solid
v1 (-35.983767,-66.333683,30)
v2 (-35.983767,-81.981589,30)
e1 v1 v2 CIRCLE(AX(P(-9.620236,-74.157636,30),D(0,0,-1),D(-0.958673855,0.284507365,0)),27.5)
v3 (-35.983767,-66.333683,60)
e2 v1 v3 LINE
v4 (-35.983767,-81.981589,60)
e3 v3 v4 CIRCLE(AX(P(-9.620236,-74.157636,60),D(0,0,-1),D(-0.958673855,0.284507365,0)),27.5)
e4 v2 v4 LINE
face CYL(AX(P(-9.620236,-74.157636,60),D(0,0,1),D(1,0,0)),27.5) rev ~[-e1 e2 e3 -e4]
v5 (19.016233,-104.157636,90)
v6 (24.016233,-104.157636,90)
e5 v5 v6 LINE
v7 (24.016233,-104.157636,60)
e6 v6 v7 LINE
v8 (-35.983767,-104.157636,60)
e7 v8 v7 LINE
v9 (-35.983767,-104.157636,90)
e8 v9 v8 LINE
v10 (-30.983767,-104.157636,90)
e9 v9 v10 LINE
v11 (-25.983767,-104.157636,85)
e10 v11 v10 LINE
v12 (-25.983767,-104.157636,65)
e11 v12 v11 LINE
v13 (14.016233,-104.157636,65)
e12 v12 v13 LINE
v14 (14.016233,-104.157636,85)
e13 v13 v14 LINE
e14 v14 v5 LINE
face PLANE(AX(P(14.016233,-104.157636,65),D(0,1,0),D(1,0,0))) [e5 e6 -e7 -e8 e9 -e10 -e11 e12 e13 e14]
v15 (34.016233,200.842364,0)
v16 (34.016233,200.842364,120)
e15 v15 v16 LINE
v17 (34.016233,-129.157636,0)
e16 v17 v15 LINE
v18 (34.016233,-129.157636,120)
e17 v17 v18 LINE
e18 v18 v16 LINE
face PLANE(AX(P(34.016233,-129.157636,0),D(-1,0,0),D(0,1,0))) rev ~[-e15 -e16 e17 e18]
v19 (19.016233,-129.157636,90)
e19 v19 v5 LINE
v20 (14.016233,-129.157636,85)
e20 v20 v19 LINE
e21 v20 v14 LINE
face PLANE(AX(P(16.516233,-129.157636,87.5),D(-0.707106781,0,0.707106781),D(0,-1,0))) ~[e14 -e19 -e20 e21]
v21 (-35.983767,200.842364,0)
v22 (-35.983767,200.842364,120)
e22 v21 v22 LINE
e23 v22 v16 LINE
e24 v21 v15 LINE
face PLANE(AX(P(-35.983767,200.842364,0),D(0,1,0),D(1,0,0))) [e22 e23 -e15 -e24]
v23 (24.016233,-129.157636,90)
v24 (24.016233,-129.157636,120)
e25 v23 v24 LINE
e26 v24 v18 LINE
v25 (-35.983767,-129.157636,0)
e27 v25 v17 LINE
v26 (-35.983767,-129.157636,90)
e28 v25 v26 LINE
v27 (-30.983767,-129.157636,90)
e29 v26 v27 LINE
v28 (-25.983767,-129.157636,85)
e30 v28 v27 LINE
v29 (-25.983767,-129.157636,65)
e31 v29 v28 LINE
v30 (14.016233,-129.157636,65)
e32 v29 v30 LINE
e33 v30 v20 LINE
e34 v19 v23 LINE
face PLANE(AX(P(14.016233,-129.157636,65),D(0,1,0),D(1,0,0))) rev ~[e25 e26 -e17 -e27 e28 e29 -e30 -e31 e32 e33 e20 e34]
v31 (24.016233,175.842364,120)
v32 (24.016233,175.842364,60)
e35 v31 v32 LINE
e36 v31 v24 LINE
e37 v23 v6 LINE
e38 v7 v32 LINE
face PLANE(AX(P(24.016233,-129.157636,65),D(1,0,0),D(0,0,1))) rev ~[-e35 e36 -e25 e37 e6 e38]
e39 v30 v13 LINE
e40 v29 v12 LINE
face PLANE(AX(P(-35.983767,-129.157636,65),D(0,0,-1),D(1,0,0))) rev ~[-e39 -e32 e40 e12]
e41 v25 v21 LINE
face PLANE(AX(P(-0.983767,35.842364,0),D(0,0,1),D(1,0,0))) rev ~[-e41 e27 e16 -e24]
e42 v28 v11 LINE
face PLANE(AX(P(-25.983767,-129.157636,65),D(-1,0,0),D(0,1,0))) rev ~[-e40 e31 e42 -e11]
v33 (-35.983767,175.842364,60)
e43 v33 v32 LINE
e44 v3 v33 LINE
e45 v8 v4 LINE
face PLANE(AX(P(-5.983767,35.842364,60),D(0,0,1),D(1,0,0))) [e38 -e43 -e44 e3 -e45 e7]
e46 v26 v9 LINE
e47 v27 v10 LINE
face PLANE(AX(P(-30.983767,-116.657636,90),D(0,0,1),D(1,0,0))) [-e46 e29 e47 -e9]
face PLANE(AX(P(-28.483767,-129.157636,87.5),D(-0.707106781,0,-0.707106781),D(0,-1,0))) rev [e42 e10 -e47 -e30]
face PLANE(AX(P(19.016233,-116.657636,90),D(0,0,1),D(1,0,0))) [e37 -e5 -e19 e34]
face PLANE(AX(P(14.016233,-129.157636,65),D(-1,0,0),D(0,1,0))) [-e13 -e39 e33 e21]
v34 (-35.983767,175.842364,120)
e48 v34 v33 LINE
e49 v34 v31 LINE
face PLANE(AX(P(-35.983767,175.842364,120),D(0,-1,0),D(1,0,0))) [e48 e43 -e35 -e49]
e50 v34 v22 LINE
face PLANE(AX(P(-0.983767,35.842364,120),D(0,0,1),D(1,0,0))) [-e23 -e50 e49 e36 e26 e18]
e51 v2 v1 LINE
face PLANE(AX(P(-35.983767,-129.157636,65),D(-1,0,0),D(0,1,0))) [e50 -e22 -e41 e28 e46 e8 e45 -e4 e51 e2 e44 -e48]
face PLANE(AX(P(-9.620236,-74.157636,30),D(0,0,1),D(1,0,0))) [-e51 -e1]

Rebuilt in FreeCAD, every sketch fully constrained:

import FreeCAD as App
import Part
import Sketcher
Q = App.Units.Quantity


def edges_at(feature, points):
    """Names of the edges that pass closest to the given points."""
    edges = feature.Shape.Edges
    near = lambda p: min(range(len(edges)), key=lambda i: edges[i].distToShape(Part.Vertex(*p))[0])
    return sorted({f"Edge{near(p) + 1}" for p in points})

doc = App.newDocument("Part")
body = doc.addObject("PartDesign::Body", "Body")

# Sketch on XY plane
sketch1 = body.newObject("Sketcher::SketchObject", "Sketch")
sketch1.AttachmentSupport = (doc.getObject("XY_Plane"), [""])
sketch1.MapMode = "FlatFace"
sketch1.addGeometry(Part.LineSegment(App.Vector(-35.983767, 200.842364, 0), App.Vector(-35.983767, -129.157636, 0)), False)
sketch1.addGeometry(Part.LineSegment(App.Vector(-35.983767, -129.157636, 0), App.Vector(34.016233, -129.157636, 0)), False)
sketch1.addGeometry(Part.LineSegment(App.Vector(34.016233, -129.157636, 0), App.Vector(34.016233, 200.842364, 0)), False)
sketch1.addGeometry(Part.LineSegment(App.Vector(34.016233, 200.842364, 0), App.Vector(-35.983767, 200.842364, 0)), False)
sketch1.addConstraint(Sketcher.Constraint("Coincident", 0, 2, 1, 1))
sketch1.addConstraint(Sketcher.Constraint("Coincident", 1, 2, 2, 1))
sketch1.addConstraint(Sketcher.Constraint("Coincident", 2, 2, 3, 1))
sketch1.addConstraint(Sketcher.Constraint("Coincident", 3, 2, 0, 1))
sketch1.addConstraint(Sketcher.Constraint("Vertical", 0))
sketch1.addConstraint(Sketcher.Constraint("Horizontal", 1))
sketch1.addConstraint(Sketcher.Constraint("Vertical", 2))
sketch1.addConstraint(Sketcher.Constraint("Horizontal", 3))
sketch1.addConstraint(Sketcher.Constraint("DistanceX", 1, 1, 1, 2, Q("70 mm")))
sketch1.addConstraint(Sketcher.Constraint("DistanceY", 0, 2, 0, 1, Q("330 mm")))
sketch1.addConstraint(Sketcher.Constraint("DistanceX", 0, 2, -1, 1, Q("35.983767 mm")))
sketch1.addConstraint(Sketcher.Constraint("DistanceY", 0, 2, -1, 1, Q("129.157636 mm")))
pad1 = body.newObject("PartDesign::Pad", "Pad")
pad1.Profile = sketch1
pad1.Length = 120

# Sketch on XY plane
sketch2 = body.newObject("Sketcher::SketchObject", "Sketch001")
sketch2.AttachmentSupport = (doc.getObject("XY_Plane"), [""])
sketch2.MapMode = "FlatFace"
sketch2.AttachmentOffset = App.Placement(App.Vector(0, 0, 120), App.Rotation())
sketch2.addGeometry(Part.LineSegment(App.Vector(-35.983767, 175.842364, 0), App.Vector(-35.983767, -104.157636, 0)), False)
sketch2.addGeometry(Part.LineSegment(App.Vector(-35.983767, -104.157636, 0), App.Vector(24.016233, -104.157636, 0)), False)
sketch2.addGeometry(Part.LineSegment(App.Vector(24.016233, -104.157636, 0), App.Vector(24.016233, 175.842364, 0)), False)
sketch2.addGeometry(Part.LineSegment(App.Vector(24.016233, 175.842364, 0), App.Vector(-35.983767, 175.842364, 0)), False)
sketch2.addConstraint(Sketcher.Constraint("Coincident", 0, 2, 1, 1))
sketch2.addConstraint(Sketcher.Constraint("Coincident", 1, 2, 2, 1))
sketch2.addConstraint(Sketcher.Constraint("Coincident", 2, 2, 3, 1))
sketch2.addConstraint(Sketcher.Constraint("Coincident", 3, 2, 0, 1))
sketch2.addConstraint(Sketcher.Constraint("Vertical", 0))
sketch2.addConstraint(Sketcher.Constraint("Horizontal", 1))
sketch2.addConstraint(Sketcher.Constraint("Vertical", 2))
sketch2.addConstraint(Sketcher.Constraint("Horizontal", 3))
sketch2.addConstraint(Sketcher.Constraint("DistanceX", 1, 1, 1, 2, Q("60 mm")))
sketch2.addConstraint(Sketcher.Constraint("DistanceY", 0, 2, 0, 1, Q("280 mm")))
sketch2.addConstraint(Sketcher.Constraint("DistanceX", 0, 2, -1, 1, Q("35.983767 mm")))
sketch2.addConstraint(Sketcher.Constraint("DistanceY", 0, 2, -1, 1, Q("104.157636 mm")))
pocket1 = body.newObject("PartDesign::Pocket", "Pocket")
pocket1.Profile = sketch2
pocket1.Length = 60

# Sketch on XY plane
sketch3 = body.newObject("Sketcher::SketchObject", "Sketch002")
sketch3.AttachmentSupport = (doc.getObject("XY_Plane"), [""])
sketch3.MapMode = "FlatFace"
sketch3.AttachmentOffset = App.Placement(App.Vector(0, 0, 60), App.Rotation())
sketch3.addGeometry(Part.Circle(App.Vector(-9.620236, -74.157636, 0), App.Vector(0, 0, 1), 27.5), False)
sketch3.addConstraint(Sketcher.Constraint("Diameter", 0, Q("55 mm")))
sketch3.addConstraint(Sketcher.Constraint("DistanceX", 0, 3, -1, 1, Q("9.620236 mm")))
sketch3.addConstraint(Sketcher.Constraint("DistanceY", 0, 3, -1, 1, Q("74.157636 mm")))
pocket2 = body.newObject("PartDesign::Pocket", "Pocket001")
pocket2.Profile = sketch3
pocket2.Length = 30

# Sketch on XZ plane
sketch4 = body.newObject("Sketcher::SketchObject", "Sketch003")
sketch4.AttachmentSupport = (doc.getObject("XZ_Plane"), [""])
sketch4.MapMode = "FlatFace"
sketch4.AttachmentOffset = App.Placement(App.Vector(0, 0, 129.157636), App.Rotation())
sketch4.addGeometry(Part.LineSegment(App.Vector(-35.983767, 120, 0), App.Vector(-35.983767, 65, 0)), False)
sketch4.addGeometry(Part.LineSegment(App.Vector(-35.983767, 65, 0), App.Vector(24.016233, 65, 0)), False)
sketch4.addGeometry(Part.LineSegment(App.Vector(24.016233, 65, 0), App.Vector(24.016233, 120, 0)), False)
sketch4.addGeometry(Part.LineSegment(App.Vector(24.016233, 120, 0), App.Vector(-35.983767, 120, 0)), False)
sketch4.addConstraint(Sketcher.Constraint("Coincident", 0, 2, 1, 1))
sketch4.addConstraint(Sketcher.Constraint("Coincident", 1, 2, 2, 1))
sketch4.addConstraint(Sketcher.Constraint("Coincident", 2, 2, 3, 1))
sketch4.addConstraint(Sketcher.Constraint("Coincident", 3, 2, 0, 1))
sketch4.addConstraint(Sketcher.Constraint("Vertical", 0))
sketch4.addConstraint(Sketcher.Constraint("Horizontal", 1))
sketch4.addConstraint(Sketcher.Constraint("Vertical", 2))
sketch4.addConstraint(Sketcher.Constraint("Horizontal", 3))
sketch4.addConstraint(Sketcher.Constraint("DistanceX", 1, 1, 1, 2, Q("60 mm")))
sketch4.addConstraint(Sketcher.Constraint("DistanceY", 0, 2, 0, 1, Q("55 mm")))
sketch4.addConstraint(Sketcher.Constraint("DistanceY", -1, 1, 0, 2, Q("65 mm")))
sketch4.addConstraint(Sketcher.Constraint("DistanceX", 0, 2, -1, 1, Q("35.983767 mm")))
pocket3 = body.newObject("PartDesign::Pocket", "Pocket002")
pocket3.Profile = sketch4
pocket3.Length = 25

# Sketch on XY plane
sketch5 = body.newObject("Sketcher::SketchObject", "Sketch004")
sketch5.AttachmentSupport = (doc.getObject("XY_Plane"), [""])
sketch5.MapMode = "FlatFace"
sketch5.AttachmentOffset = App.Placement(App.Vector(0, 0, 65), App.Rotation())
sketch5.addGeometry(Part.LineSegment(App.Vector(-35.983767, -104.157636, 0), App.Vector(-35.983767, -129.157636, 0)), False)
sketch5.addGeometry(Part.LineSegment(App.Vector(-35.983767, -129.157636, 0), App.Vector(-25.983767, -129.157636, 0)), False)
sketch5.addGeometry(Part.LineSegment(App.Vector(-25.983767, -129.157636, 0), App.Vector(-25.983767, -104.157636, 0)), False)
sketch5.addGeometry(Part.LineSegment(App.Vector(-25.983767, -104.157636, 0), App.Vector(-35.983767, -104.157636, 0)), False)
sketch5.addConstraint(Sketcher.Constraint("Coincident", 0, 2, 1, 1))
sketch5.addConstraint(Sketcher.Constraint("Coincident", 1, 2, 2, 1))
sketch5.addConstraint(Sketcher.Constraint("Coincident", 2, 2, 3, 1))
sketch5.addConstraint(Sketcher.Constraint("Coincident", 3, 2, 0, 1))
sketch5.addConstraint(Sketcher.Constraint("Vertical", 0))
sketch5.addConstraint(Sketcher.Constraint("Horizontal", 1))
sketch5.addConstraint(Sketcher.Constraint("Vertical", 2))
sketch5.addConstraint(Sketcher.Constraint("Horizontal", 3))
sketch5.addConstraint(Sketcher.Constraint("DistanceX", 1, 1, 1, 2, Q("10 mm")))
sketch5.addConstraint(Sketcher.Constraint("DistanceY", 0, 2, 0, 1, Q("25 mm")))
sketch5.addConstraint(Sketcher.Constraint("DistanceX", 0, 2, -1, 1, Q("35.983767 mm")))
sketch5.addConstraint(Sketcher.Constraint("DistanceY", 0, 2, -1, 1, Q("129.157636 mm")))
pad2 = body.newObject("PartDesign::Pad", "Pad001")
pad2.Profile = sketch5
pad2.Length = 25

# Sketch on XY plane
sketch6 = body.newObject("Sketcher::SketchObject", "Sketch005")
sketch6.AttachmentSupport = (doc.getObject("XY_Plane"), [""])
sketch6.MapMode = "FlatFace"
sketch6.AttachmentOffset = App.Placement(App.Vector(0, 0, 65), App.Rotation())
sketch6.addGeometry(Part.LineSegment(App.Vector(14.016233, -104.157636, 0), App.Vector(14.016233, -129.157636, 0)), False)
sketch6.addGeometry(Part.LineSegment(App.Vector(14.016233, -129.157636, 0), App.Vector(24.016233, -129.157636, 0)), False)
sketch6.addGeometry(Part.LineSegment(App.Vector(24.016233, -129.157636, 0), App.Vector(24.016233, -104.157636, 0)), False)
sketch6.addGeometry(Part.LineSegment(App.Vector(24.016233, -104.157636, 0), App.Vector(14.016233, -104.157636, 0)), False)
sketch6.addConstraint(Sketcher.Constraint("Coincident", 0, 2, 1, 1))
sketch6.addConstraint(Sketcher.Constraint("Coincident", 1, 2, 2, 1))
sketch6.addConstraint(Sketcher.Constraint("Coincident", 2, 2, 3, 1))
sketch6.addConstraint(Sketcher.Constraint("Coincident", 3, 2, 0, 1))
sketch6.addConstraint(Sketcher.Constraint("Vertical", 0))
sketch6.addConstraint(Sketcher.Constraint("Horizontal", 1))
sketch6.addConstraint(Sketcher.Constraint("Vertical", 2))
sketch6.addConstraint(Sketcher.Constraint("Horizontal", 3))
sketch6.addConstraint(Sketcher.Constraint("DistanceX", 1, 1, 1, 2, Q("10 mm")))
sketch6.addConstraint(Sketcher.Constraint("DistanceY", 0, 2, 0, 1, Q("25 mm")))
sketch6.addConstraint(Sketcher.Constraint("DistanceX", -1, 1, 0, 2, Q("14.016233 mm")))
sketch6.addConstraint(Sketcher.Constraint("DistanceY", 0, 2, -1, 1, Q("129.157636 mm")))
pad3 = body.newObject("PartDesign::Pad", "Pad002")
pad3.Profile = sketch6
pad3.Length = 25
doc.recompute()

chamfer = body.newObject("PartDesign::Chamfer", "Chamfer")
chamfer.Base = (pad3, edges_at(pad3, [(14.016, -116.658, 90)]))
chamfer.Size = 5
doc.recompute()

chamfer2 = body.newObject("PartDesign::Chamfer", "Chamfer001")
chamfer2.Base = (chamfer, edges_at(chamfer, [(-25.984, -116.658, 90)]))
chamfer2.Size = 5

doc.recompute()
